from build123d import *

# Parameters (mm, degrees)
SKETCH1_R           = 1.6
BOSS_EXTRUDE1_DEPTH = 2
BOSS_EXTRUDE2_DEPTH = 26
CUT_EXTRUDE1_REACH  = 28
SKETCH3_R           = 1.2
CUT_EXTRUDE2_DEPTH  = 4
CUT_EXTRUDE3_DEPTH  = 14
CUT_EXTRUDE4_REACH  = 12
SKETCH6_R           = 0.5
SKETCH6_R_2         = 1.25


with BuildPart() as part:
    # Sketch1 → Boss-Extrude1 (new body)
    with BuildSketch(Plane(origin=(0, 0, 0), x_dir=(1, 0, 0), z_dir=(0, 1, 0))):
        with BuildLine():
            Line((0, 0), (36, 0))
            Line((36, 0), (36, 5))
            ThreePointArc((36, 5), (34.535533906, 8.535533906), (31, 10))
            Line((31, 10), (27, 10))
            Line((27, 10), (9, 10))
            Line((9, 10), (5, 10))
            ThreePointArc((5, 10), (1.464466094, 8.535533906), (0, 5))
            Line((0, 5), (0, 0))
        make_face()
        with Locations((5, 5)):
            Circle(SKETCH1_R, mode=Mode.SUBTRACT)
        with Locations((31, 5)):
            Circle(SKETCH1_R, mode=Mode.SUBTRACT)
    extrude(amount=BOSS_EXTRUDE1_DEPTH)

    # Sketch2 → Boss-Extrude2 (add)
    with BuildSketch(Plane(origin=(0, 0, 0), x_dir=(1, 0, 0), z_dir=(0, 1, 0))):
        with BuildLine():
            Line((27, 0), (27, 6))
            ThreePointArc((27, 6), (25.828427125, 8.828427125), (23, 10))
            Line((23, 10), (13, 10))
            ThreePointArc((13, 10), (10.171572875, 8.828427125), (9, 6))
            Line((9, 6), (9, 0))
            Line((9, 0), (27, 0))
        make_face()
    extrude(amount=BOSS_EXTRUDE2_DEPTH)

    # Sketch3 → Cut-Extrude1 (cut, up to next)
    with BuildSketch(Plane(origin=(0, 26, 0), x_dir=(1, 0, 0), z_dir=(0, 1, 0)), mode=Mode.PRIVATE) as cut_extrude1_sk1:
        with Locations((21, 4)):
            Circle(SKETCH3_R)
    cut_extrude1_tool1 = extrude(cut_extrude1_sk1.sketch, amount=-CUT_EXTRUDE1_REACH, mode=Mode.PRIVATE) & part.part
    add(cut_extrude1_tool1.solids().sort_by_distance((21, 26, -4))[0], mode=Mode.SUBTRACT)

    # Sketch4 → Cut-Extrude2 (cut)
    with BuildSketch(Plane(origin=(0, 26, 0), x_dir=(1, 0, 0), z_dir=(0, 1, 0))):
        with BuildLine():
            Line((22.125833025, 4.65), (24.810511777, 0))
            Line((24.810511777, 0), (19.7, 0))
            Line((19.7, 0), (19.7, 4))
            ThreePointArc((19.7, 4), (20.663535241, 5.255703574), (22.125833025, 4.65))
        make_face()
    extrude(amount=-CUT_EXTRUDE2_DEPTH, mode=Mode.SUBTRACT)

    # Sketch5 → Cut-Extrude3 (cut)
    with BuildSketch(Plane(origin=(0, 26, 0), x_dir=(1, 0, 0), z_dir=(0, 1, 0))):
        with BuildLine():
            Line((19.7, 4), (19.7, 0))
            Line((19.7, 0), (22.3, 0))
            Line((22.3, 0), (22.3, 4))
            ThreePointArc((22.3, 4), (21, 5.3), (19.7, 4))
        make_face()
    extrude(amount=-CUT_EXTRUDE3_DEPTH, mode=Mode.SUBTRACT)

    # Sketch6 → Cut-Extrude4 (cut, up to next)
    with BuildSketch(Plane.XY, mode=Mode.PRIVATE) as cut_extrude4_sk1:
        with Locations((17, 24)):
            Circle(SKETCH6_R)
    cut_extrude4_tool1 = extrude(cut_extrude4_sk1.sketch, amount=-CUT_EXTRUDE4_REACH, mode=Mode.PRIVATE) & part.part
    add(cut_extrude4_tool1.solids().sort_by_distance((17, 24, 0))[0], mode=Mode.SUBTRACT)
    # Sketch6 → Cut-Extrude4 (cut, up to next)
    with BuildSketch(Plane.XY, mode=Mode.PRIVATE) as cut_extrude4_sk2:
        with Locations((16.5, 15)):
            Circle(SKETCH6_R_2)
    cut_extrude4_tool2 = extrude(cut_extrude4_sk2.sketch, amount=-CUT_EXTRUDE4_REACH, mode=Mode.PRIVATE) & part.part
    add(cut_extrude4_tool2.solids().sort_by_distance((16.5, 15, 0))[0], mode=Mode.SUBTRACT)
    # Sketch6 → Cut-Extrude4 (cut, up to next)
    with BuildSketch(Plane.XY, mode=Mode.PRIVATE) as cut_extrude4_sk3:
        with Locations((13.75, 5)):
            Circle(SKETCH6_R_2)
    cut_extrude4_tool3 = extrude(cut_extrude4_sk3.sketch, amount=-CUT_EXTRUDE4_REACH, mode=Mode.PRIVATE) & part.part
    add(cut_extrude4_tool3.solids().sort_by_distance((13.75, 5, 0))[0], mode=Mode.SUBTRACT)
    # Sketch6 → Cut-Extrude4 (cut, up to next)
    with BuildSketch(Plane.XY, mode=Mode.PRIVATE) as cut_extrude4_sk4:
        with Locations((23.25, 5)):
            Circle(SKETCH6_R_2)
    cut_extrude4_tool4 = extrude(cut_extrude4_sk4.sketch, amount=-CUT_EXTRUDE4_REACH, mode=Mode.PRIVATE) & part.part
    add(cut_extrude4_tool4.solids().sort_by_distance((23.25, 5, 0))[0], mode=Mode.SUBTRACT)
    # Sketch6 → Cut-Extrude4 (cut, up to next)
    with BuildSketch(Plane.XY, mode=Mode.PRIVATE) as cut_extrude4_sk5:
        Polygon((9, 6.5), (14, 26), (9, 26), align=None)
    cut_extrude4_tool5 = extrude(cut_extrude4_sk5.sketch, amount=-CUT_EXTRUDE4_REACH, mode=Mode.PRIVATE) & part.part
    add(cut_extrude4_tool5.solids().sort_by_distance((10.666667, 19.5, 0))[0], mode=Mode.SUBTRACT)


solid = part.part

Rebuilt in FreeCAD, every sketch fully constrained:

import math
import FreeCAD as App
import Part
import Sketcher

V = App.Vector
Q = App.Units.Quantity


def add_polygon(sketch, points):
    """Adds a closed chain of lines whose ends are joined by coincident constraints."""
    first, n = sketch.GeometryCount, len(points)
    for a, b in zip(points, points[1:] + points[:1]):
        sketch.addGeometry(Part.LineSegment(App.Vector(*a, 0), App.Vector(*b, 0)), False)
    for i in range(n):
        sketch.addConstraint(Sketcher.Constraint("Coincident", first + i, 2, first + (i + 1) % n, 1))

doc = App.newDocument("Part")
body = doc.addObject("PartDesign::Body", "Body")

# Sketch on XZ plane
sketch1 = doc.addObject("Sketcher::SketchObject", "Sketch")
body.addObject(sketch1)
sketch1.AttachmentSupport = (doc.XZ_Plane, [""])
sketch1.MapMode = "FlatFace"
sketch1.addGeometry(Part.LineSegment(V(0, 0, 0), V(36, 0, 0)), False)
sketch1.addGeometry(Part.LineSegment(V(36, 0, 0), V(36, -5, 0)), False)
sketch1.addGeometry(Part.ArcOfCircle(Part.Circle(V(31, -5, 0), V(0, 0, 1), 5), math.radians(-90), math.radians(0)), False)
sketch1.addGeometry(Part.LineSegment(V(31, -10, 0), V(5, -10, 0)), False)
sketch1.addGeometry(Part.ArcOfCircle(Part.Circle(V(5, -5, 0), V(0, 0, 1), 5), math.radians(180), math.radians(270)), False)
sketch1.addGeometry(Part.LineSegment(V(0, -5, 0), V(0, 0, 0)), False)
sketch1.addGeometry(Part.Circle(V(5, -5, 0), V(0, 0, 1), 1.6), False)
sketch1.addGeometry(Part.Circle(V(31, -5, 0), V(0, 0, 1), 1.6), False)
sketch1.addConstraint(Sketcher.Constraint("Coincident", 0, 2, 1, 1))
sketch1.addConstraint(Sketcher.Constraint("Tangent", 1, 2, 2, 2))
sketch1.addConstraint(Sketcher.Constraint("Tangent", 2, 1, 3, 1))
sketch1.addConstraint(Sketcher.Constraint("Tangent", 3, 2, 4, 2))
sketch1.addConstraint(Sketcher.Constraint("Tangent", 4, 1, 5, 1))
sketch1.addConstraint(Sketcher.Constraint("Coincident", 5, 2, 0, 1))
sketch1.addConstraint(Sketcher.Constraint("Horizontal", 0))
sketch1.addConstraint(Sketcher.Constraint("Vertical", 1))
sketch1.addConstraint(Sketcher.Constraint("Horizontal", 3))
sketch1.addConstraint(Sketcher.Constraint("Vertical", 5))
sketch1.addConstraint(Sketcher.Constraint("Coincident", 5, 2, -1, 1))
sketch1.addConstraint(Sketcher.Constraint("Coincident", 6, 3, 4, 3))
sketch1.addConstraint(Sketcher.Constraint("Coincident", 7, 3, 2, 3))
sketch1.addConstraint(Sketcher.Constraint("Equal", 2, 4))
sketch1.addConstraint(Sketcher.Constraint("Equal", 6, 7))
sketch1.addConstraint(Sketcher.Constraint("Radius", 2, 5.0))
sketch1.addConstraint(Sketcher.Constraint("Diameter", 6, 3.2))
sketch1.addConstraint(Sketcher.Constraint("DistanceX", 0, 1, 0, 2, 36.0))
sketch1.addConstraint(Sketcher.Constraint("DistanceY", 1, 2, 1, 1, 5.0))
pad1 = doc.addObject("PartDesign::Pad", "Pad")
body.addObject(pad1)
pad1.Profile = sketch1
pad1.Length = 2
pad1.Reversed = True

# Sketch on XZ plane
sketch2 = doc.addObject("Sketcher::SketchObject", "Sketch001")
body.addObject(sketch2)
sketch2.AttachmentSupport = (doc.XZ_Plane, [""])
sketch2.MapMode = "FlatFace"
sketch2.addGeometry(Part.LineSegment(V(27, 0, 0), V(27, -6, 0)), False)
sketch2.addGeometry(Part.ArcOfCircle(Part.Circle(V(23, -6, 0), V(0, 0, 1), 4), math.radians(-90), math.radians(0)), False)
sketch2.addGeometry(Part.LineSegment(V(23, -10, 0), V(13, -10, 0)), False)
sketch2.addGeometry(Part.ArcOfCircle(Part.Circle(V(13, -6, 0), V(0, 0, 1), 4), math.radians(180), math.radians(270)), False)
sketch2.addGeometry(Part.LineSegment(V(9, -6, 0), V(9, 0, 0)), False)
sketch2.addGeometry(Part.LineSegment(V(9, 0, 0), V(27, 0, 0)), False)
sketch2.addConstraint(Sketcher.Constraint("Tangent", 0, 2, 1, 2))
sketch2.addConstraint(Sketcher.Constraint("Tangent", 1, 1, 2, 1))
sketch2.addConstraint(Sketcher.Constraint("Tangent", 2, 2, 3, 2))
sketch2.addConstraint(Sketcher.Constraint("Tangent", 3, 1, 4, 1))
sketch2.addConstraint(Sketcher.Constraint("Coincident", 4, 2, 5, 1))
sketch2.addConstraint(Sketcher.Constraint("Coincident", 5, 2, 0, 1))
sketch2.addConstraint(Sketcher.Constraint("Vertical", 0))
sketch2.addConstraint(Sketcher.Constraint("Horizontal", 2))
sketch2.addConstraint(Sketcher.Constraint("Vertical", 4))
sketch2.addConstraint(Sketcher.Constraint("Horizontal", 5))
sketch2.addConstraint(Sketcher.Constraint("Equal", 1, 3))
sketch2.addConstraint(Sketcher.Constraint("PointOnObject", 4, 2, -1))
sketch2.addConstraint(Sketcher.Constraint("Radius", 1, 4.0))
sketch2.addConstraint(Sketcher.Constraint("DistanceX", 2, 2, 2, 1, 10.0))
sketch2.addConstraint(Sketcher.Constraint("DistanceY", 0, 2, 0, 1, 6.0))
sketch2.addConstraint(Sketcher.Constraint("DistanceX", -1, 1, 1, 3, 23.0))
pad2 = doc.addObject("PartDesign::Pad", "Pad001")
body.addObject(pad2)
pad2.Profile = sketch2
pad2.Length = 26
pad2.Reversed = True

# Sketch on XZ plane
sketch3 = doc.addObject("Sketcher::SketchObject", "Sketch002")
body.addObject(sketch3)
sketch3.AttachmentSupport = (doc.XZ_Plane, [""])
sketch3.MapMode = "FlatFace"
sketch3.AttachmentOffset = App.Placement(V(0, 0, -26), App.Rotation())
sketch3.addGeometry(Part.Circle(V(21, -4, 0), V(0, 0, 1), 1.2), False)
sketch3.addConstraint(Sketcher.Constraint("Diameter", 0, 2.4))
sketch3.addConstraint(Sketcher.Constraint("DistanceX", -1, 1, 0, 3, 21.0))
sketch3.addConstraint(Sketcher.Constraint("DistanceY", 0, 3, -1, 1, 4.0))
pocket1 = doc.addObject("PartDesign::Pocket", "Pocket")
body.addObject(pocket1)
pocket1.Profile = sketch3
pocket1.Type = "UpToFirst"
pocket1.Reversed = True

# Sketch on XZ plane
sketch4 = doc.addObject("Sketcher::SketchObject", "Sketch003")
body.addObject(sketch4)
sketch4.AttachmentSupport = (doc.XZ_Plane, [""])
sketch4.MapMode = "FlatFace"
sketch4.AttachmentOffset = App.Placement(V(0, 0, -26), App.Rotation())
sketch4.addGeometry(Part.LineSegment(V(24.8, 0, 0), V(22.1, -4.7, 0)), False)
sketch4.addGeometry(Part.ArcOfCircle(Part.Circle(V(21, -4, 0), V(0, 0, 1), 1.3), math.radians(180), math.radians(330)), False)
sketch4.addGeometry(Part.LineSegment(V(19.7, -4, 0), V(19.7, 0, 0)), False)
sketch4.addGeometry(Part.LineSegment(V(19.7, 0, 0), V(24.8, 0, 0)), False)
sketch4.addConstraint(Sketcher.Constraint("Tangent", 0, 2, 1, 2))
sketch4.addConstraint(Sketcher.Constraint("Tangent", 1, 1, 2, 1))
sketch4.addConstraint(Sketcher.Constraint("Coincident", 2, 2, 3, 1))
sketch4.addConstraint(Sketcher.Constraint("Coincident", 3, 2, 0, 1))
sketch4.addConstraint(Sketcher.Constraint("Vertical", 2))
sketch4.addConstraint(Sketcher.Constraint("Horizontal", 3))
sketch4.addConstraint(Sketcher.Constraint("PointOnObject", 2, 2, -1))
sketch4.addConstraint(Sketcher.Constraint("Radius", 1, 1.3))
sketch4.addConstraint(Sketcher.Constraint("DistanceY", 2, 1, 2, 2, 4.0))
sketch4.addConstraint(Sketcher.Constraint("Angle", 0, Q("-120 deg")))
sketch4.addConstraint(Sketcher.Constraint("DistanceX", -1, 1, 1, 3, 21.0))
pocket2 = doc.addObject("PartDesign::Pocket", "Pocket001")
body.addObject(pocket2)
pocket2.Profile = sketch4
pocket2.Length = 4
pocket2.Reversed = True

# Sketch on XZ plane
sketch5 = doc.addObject("Sketcher::SketchObject", "Sketch004")
body.addObject(sketch5)
sketch5.AttachmentSupport = (doc.XZ_Plane, [""])
sketch5.MapMode = "FlatFace"
sketch5.AttachmentOffset = App.Placement(V(0, 0, -26), App.Rotation())
sketch5.addGeometry(Part.LineSegment(V(19.7, -4, 0), V(19.7, 0, 0)), False)
sketch5.addGeometry(Part.LineSegment(V(19.7, 0, 0), V(22.3, 0, 0)), False)
sketch5.addGeometry(Part.LineSegment(V(22.3, 0, 0), V(22.3, -4, 0)), False)
sketch5.addGeometry(Part.ArcOfCircle(Part.Circle(V(21, -4, 0), V(0, 0, 1), 1.3), math.radians(180), math.radians(360)), False)
sketch5.addConstraint(Sketcher.Constraint("Coincident", 0, 2, 1, 1))
sketch5.addConstraint(Sketcher.Constraint("Coincident", 1, 2, 2, 1))
sketch5.addConstraint(Sketcher.Constraint("Tangent", 2, 2, 3, 2))
sketch5.addConstraint(Sketcher.Constraint("Tangent", 3, 1, 0, 1))
sketch5.addConstraint(Sketcher.Constraint("Vertical", 0))
sketch5.addConstraint(Sketcher.Constraint("Horizontal", 1))
sketch5.addConstraint(Sketcher.Constraint("Vertical", 2))
sketch5.addConstraint(Sketcher.Constraint("PointOnObject", 0, 2, -1))
sketch5.addConstraint(Sketcher.Constraint("Radius", 3, 1.3))
sketch5.addConstraint(Sketcher.Constraint("DistanceY", 0, 1, 0, 2, 4.0))
sketch5.addConstraint(Sketcher.Constraint("DistanceX", -1, 1, 3, 3, 21.0))
pocket3 = doc.addObject("PartDesign::Pocket", "Pocket002")
body.addObject(pocket3)
pocket3.Profile = sketch5
pocket3.Length = 14
pocket3.Reversed = True

# Sketch on XY plane
sketch6 = doc.addObject("Sketcher::SketchObject", "Sketch005")
body.addObject(sketch6)
sketch6.AttachmentSupport = (doc.XY_Plane, [""])
sketch6.MapMode = "FlatFace"
sketch6.addGeometry(Part.Circle(V(17, 24, 0), V(0, 0, 1), 0.5), False)
sketch6.addConstraint(Sketcher.Constraint("Diameter", 0, 1.0))
sketch6.addConstraint(Sketcher.Constraint("DistanceX", -1, 1, 0, 3, 17.0))
sketch6.addConstraint(Sketcher.Constraint("DistanceY", -1, 1, 0, 3, 24.0))
pocket4 = doc.addObject("PartDesign::Pocket", "Pocket003")
body.addObject(pocket4)
pocket4.Profile = sketch6
pocket4.Type = "UpToFirst"

# Sketch on XY plane
sketch7 = doc.addObject("Sketcher::SketchObject", "Sketch006")
body.addObject(sketch7)
sketch7.AttachmentSupport = (doc.XY_Plane, [""])
sketch7.MapMode = "FlatFace"
sketch7.addGeometry(Part.Circle(V(16.5, 15, 0), V(0, 0, 1), 1.2), False)
sketch7.addConstraint(Sketcher.Constraint("Diameter", 0, 2.5))
sketch7.addConstraint(Sketcher.Constraint("DistanceY", -1, 1, 0, 3, 15.0))
sketch7.addConstraint(Sketcher.Constraint("DistanceX", -1, 1, 0, 3, 16.5))
pocket5 = doc.addObject("PartDesign::Pocket", "Pocket004")
body.addObject(pocket5)
pocket5.Profile = sketch7
pocket5.Type = "UpToFirst"

# Sketch on XY plane
sketch8 = doc.addObject("Sketcher::SketchObject", "Sketch007")
body.addObject(sketch8)
sketch8.AttachmentSupport = (doc.XY_Plane, [""])
sketch8.MapMode = "FlatFace"
sketch8.addGeometry(Part.Circle(V(13.8, 5, 0), V(0, 0, 1), 1.2), False)
sketch8.addConstraint(Sketcher.Constraint("Diameter", 0, 2.5))
sketch8.addConstraint(Sketcher.Constraint("DistanceY", -1, 1, 0, 3, 5.0))
sketch8.addConstraint(Sketcher.Constraint("DistanceX", -1, 1, 0, 3, 13.75))
pocket6 = doc.addObject("PartDesign::Pocket", "Pocket005")
body.addObject(pocket6)
pocket6.Profile = sketch8
pocket6.Type = "UpToFirst"

# Sketch on XY plane
sketch9 = doc.addObject("Sketcher::SketchObject", "Sketch008")
body.addObject(sketch9)
sketch9.AttachmentSupport = (doc.XY_Plane, [""])
sketch9.MapMode = "FlatFace"
sketch9.addGeometry(Part.Circle(V(23.2, 5, 0), V(0, 0, 1), 1.2), False)
sketch9.addConstraint(Sketcher.Constraint("Diameter", 0, 2.5))
sketch9.addConstraint(Sketcher.Constraint("DistanceY", -1, 1, 0, 3, 5.0))
sketch9.addConstraint(Sketcher.Constraint("DistanceX", -1, 1, 0, 3, 23.25))
pocket7 = doc.addObject("PartDesign::Pocket", "Pocket006")
body.addObject(pocket7)
pocket7.Profile = sketch9
pocket7.Type = "UpToFirst"

# Sketch on XY plane
sketch10 = doc.addObject("Sketcher::SketchObject", "Sketch009")
body.addObject(sketch10)
sketch10.AttachmentSupport = (doc.XY_Plane, [""])
sketch10.MapMode = "FlatFace"
add_polygon(sketch10, [(9, 6), (14, 26), (9, 26)])  # lines 0-2
sketch10.addConstraint(Sketcher.Constraint("Horizontal", 1))
sketch10.addConstraint(Sketcher.Constraint("Vertical", 2))
sketch10.addConstraint(Sketcher.Constraint("DistanceX", 1, 2, 1, 1, 5.0))
sketch10.addConstraint(Sketcher.Constraint("DistanceY", 2, 2, 2, 1, 19.5))
sketch10.addConstraint(Sketcher.Constraint("DistanceX", -1, 1, 0, 2, 14.0))
sketch10.addConstraint(Sketcher.Constraint("DistanceY", -1, 1, 0, 2, 26.0))
pocket8 = doc.addObject("PartDesign::Pocket", "Pocket007")
body.addObject(pocket8)
pocket8.Profile = sketch10
pocket8.Type = "UpToFirst"

doc.recompute()
